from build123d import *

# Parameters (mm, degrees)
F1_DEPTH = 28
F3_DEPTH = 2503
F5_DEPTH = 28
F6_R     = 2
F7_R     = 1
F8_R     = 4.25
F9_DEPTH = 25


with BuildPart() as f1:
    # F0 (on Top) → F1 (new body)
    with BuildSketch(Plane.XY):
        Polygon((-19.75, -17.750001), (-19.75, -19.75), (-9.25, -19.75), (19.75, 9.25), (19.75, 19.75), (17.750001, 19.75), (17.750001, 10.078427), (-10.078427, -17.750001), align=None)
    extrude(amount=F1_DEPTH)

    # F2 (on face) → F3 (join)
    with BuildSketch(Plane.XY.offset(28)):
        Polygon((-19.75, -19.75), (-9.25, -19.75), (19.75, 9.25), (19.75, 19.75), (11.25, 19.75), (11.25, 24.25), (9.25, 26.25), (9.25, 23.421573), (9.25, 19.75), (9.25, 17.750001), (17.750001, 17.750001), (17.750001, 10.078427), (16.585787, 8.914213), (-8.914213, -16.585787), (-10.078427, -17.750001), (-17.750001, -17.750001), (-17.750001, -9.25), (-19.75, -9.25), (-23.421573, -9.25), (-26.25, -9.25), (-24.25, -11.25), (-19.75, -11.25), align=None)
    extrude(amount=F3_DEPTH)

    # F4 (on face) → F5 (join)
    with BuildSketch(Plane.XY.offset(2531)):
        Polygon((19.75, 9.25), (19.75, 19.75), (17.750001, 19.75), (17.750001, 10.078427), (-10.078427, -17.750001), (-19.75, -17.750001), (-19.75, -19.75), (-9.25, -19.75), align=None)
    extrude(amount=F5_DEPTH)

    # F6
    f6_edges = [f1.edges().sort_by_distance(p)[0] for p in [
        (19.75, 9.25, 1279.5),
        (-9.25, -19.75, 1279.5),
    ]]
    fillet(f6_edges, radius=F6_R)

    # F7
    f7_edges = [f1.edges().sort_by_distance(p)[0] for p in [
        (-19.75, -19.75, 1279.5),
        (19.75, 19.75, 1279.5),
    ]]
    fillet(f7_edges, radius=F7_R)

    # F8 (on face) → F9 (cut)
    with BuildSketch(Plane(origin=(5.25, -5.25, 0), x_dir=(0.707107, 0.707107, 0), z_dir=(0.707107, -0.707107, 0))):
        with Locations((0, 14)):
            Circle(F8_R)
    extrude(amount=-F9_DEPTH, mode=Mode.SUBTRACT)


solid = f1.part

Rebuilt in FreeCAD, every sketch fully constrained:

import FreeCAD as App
import Part
import Sketcher
from FreeCAD import Vector
Q = App.Units.Quantity


def edges_at(feature, points):
    """Names of the edges that pass closest to the given points."""
    edges = feature.Shape.Edges
    near = lambda p: min(range(len(edges)), key=lambda i: edges[i].distToShape(Part.Vertex(*p))[0])
    return sorted({f"Edge{near(p) + 1}" for p in points})


def add_polygon(sketch, points):
    """Adds a closed chain of lines whose ends are joined by coincident constraints."""
    first, n = sketch.GeometryCount, len(points)
    for a, b in zip(points, points[1:] + points[:1]):
        sketch.addGeometry(Part.LineSegment(App.Vector(*a, 0), App.Vector(*b, 0)), False)
    for i in range(n):
        sketch.addConstraint(Sketcher.Constraint("Coincident", first + i, 2, first + (i + 1) % n, 1))

doc = App.newDocument("Part")
body = doc.addObject("PartDesign::Body", "Body")

sketch1 = body.newObject("Sketcher::SketchObject", "Sketch")
sketch1.AttachmentSupport = (doc.getObject("XY_Plane"), [""])
sketch1.MapMode = "FlatFace"
add_polygon(sketch1, [(-19.8, -17.8), (-19.8, -19.8), (-9.2, -19.8), (19.8, 9.2), (19.8, 19.8), (17.8, 19.8), (17.8, 10.1), (-10.1, -17.8)])
sketch1.addConstraint(Sketcher.Constraint("Vertical", 0))
sketch1.addConstraint(Sketcher.Constraint("Horizontal", 1))
sketch1.addConstraint(Sketcher.Constraint("Vertical", 3))
sketch1.addConstraint(Sketcher.Constraint("Horizontal", 4))
sketch1.addConstraint(Sketcher.Constraint("Vertical", 5))
sketch1.addConstraint(Sketcher.Constraint("Horizontal", 7))
sketch1.addConstraint(Sketcher.Constraint("Symmetric", 0, 2, 3, 2, -1, 1))
sketch1.addConstraint(Sketcher.Constraint("Parallel", 2, 6))
sketch1.addConstraint(Sketcher.Constraint("Equal", 4, 0))
sketch1.addConstraint(Sketcher.Constraint("Equal", 1, 3))
sketch1.addConstraint(Sketcher.Constraint("Equal", 7, 5))
sketch1.addConstraint(Sketcher.Constraint("DistanceX", 4, 2, 4, 1, Q("1.999999 mm")))
sketch1.addConstraint(Sketcher.Constraint("DistanceX", 1, 1, 1, 2, Q("10.5 mm")))
sketch1.addConstraint(Sketcher.Constraint("DistanceX", 1, 2, 2, 2, Q("29 mm")))
sketch1.addConstraint(Sketcher.Constraint("Distance", 6, Q("39.35534 mm")))
pad1 = body.newObject("PartDesign::Pad", "Pad")
pad1.Profile = sketch1
pad1.Length = 28

sketch2 = body.newObject("Sketcher::SketchObject", "Sketch001")
sketch2.AttachmentSupport = (doc.getObject("XY_Plane"), [""])
sketch2.MapMode = "FlatFace"
sketch2.AttachmentOffset = App.Placement(Vector(0, 0, 28), App.Rotation())
add_polygon(sketch2, [(-19.8, -19.8), (-9.2, -19.8), (19.8, 9.2), (19.8, 19.8), (11.2, 19.8), (11.2, 24.2), (9.2, 26.2), (9.2, 17.8), (17.8, 17.8), (17.8, 10.1), (-10.1, -17.8), (-17.8, -17.8), (-17.8, -9.2), (-26.2, -9.2), (-24.2, -11.2), (-19.8, -11.2)])
sketch2.addConstraint(Sketcher.Constraint("Horizontal", 0))
sketch2.addConstraint(Sketcher.Constraint("Vertical", 2))
sketch2.addConstraint(Sketcher.Constraint("Horizontal", 3))
sketch2.addConstraint(Sketcher.Constraint("Vertical", 4))
sketch2.addConstraint(Sketcher.Constraint("Vertical", 6))
sketch2.addConstraint(Sketcher.Constraint("Horizontal", 7))
sketch2.addConstraint(Sketcher.Constraint("Vertical", 8))
sketch2.addConstraint(Sketcher.Constraint("Horizontal", 10))
sketch2.addConstraint(Sketcher.Constraint("Vertical", 11))
sketch2.addConstraint(Sketcher.Constraint("Horizontal", 12))
sketch2.addConstraint(Sketcher.Constraint("Horizontal", 14))
sketch2.addConstraint(Sketcher.Constraint("Vertical", 15))
sketch2.addConstraint(Sketcher.Constraint("Symmetric", 7, 2, 10, 2, -1, 1))
sketch2.addConstraint(Sketcher.Constraint("Symmetric", 2, 2, 15, 2, -1, 1))
sketch2.addConstraint(Sketcher.Constraint("Perpendicular", 1, 5))
sketch2.addConstraint(Sketcher.Constraint("Perpendicular", 5, 9))
sketch2.addConstraint(Sketcher.Constraint("Perpendicular", 9, 13))
sketch2.addConstraint(Sketcher.Constraint("Equal", 3, 7))
sketch2.addConstraint(Sketcher.Constraint("Equal", 3, 12))
sketch2.addConstraint(Sketcher.Constraint("Equal", 0, 2))
sketch2.addConstraint(Sketcher.Constraint("Equal", 14, 4))
sketch2.addConstraint(Sketcher.Constraint("Equal", 12, 6))
sketch2.addConstraint(Sketcher.Constraint("Equal", 10, 8))
sketch2.addConstraint(Sketcher.Constraint("Equal", 7, 11))
sketch2.addConstraint(Sketcher.Constraint("Equal", 11, 15))
sketch2.addConstraint(Sketcher.Constraint("DistanceX", 0, 1, 0, 2, Q("10.5 mm")))
sketch2.addConstraint(Sketcher.Constraint("DistanceX", 3, 2, 3, 1, Q("8.5 mm")))
sketch2.addConstraint(Sketcher.Constraint("DistanceX", 14, 1, 14, 2, Q("4.5 mm")))
sketch2.addConstraint(Sketcher.Constraint("DistanceX", 0, 2, 1, 2, Q("29 mm")))
sketch2.addConstraint(Sketcher.Constraint("Distance", 9, Q("39.35534 mm")))
pad2 = body.newObject("PartDesign::Pad", "Pad001")
pad2.Profile = sketch2
pad2.Length = 2503

sketch3 = body.newObject("Sketcher::SketchObject", "Sketch002")
sketch3.AttachmentSupport = (doc.getObject("XY_Plane"), [""])
sketch3.MapMode = "FlatFace"
sketch3.AttachmentOffset = App.Placement(Vector(0, 0, 2531), App.Rotation())
add_polygon(sketch3, [(19.8, 9.2), (19.8, 19.8), (17.8, 19.8), (17.8, 10.1), (-10.1, -17.8), (-19.8, -17.8), (-19.8, -19.8), (-9.2, -19.8)])
sketch3.addConstraint(Sketcher.Constraint("Vertical", 0))
sketch3.addConstraint(Sketcher.Constraint("Horizontal", 1))
sketch3.addConstraint(Sketcher.Constraint("Vertical", 2))
sketch3.addConstraint(Sketcher.Constraint("Horizontal", 4))
sketch3.addConstraint(Sketcher.Constraint("Vertical", 5))
sketch3.addConstraint(Sketcher.Constraint("Horizontal", 6))
sketch3.addConstraint(Sketcher.Constraint("Symmetric", 0, 2, 5, 2, -1, 1))
sketch3.addConstraint(Sketcher.Constraint("Parallel", 3, 7))
sketch3.addConstraint(Sketcher.Constraint("Equal", 6, 0))
sketch3.addConstraint(Sketcher.Constraint("Equal", 4, 2))
sketch3.addConstraint(Sketcher.Constraint("Equal", 1, 5))
sketch3.addConstraint(Sketcher.Constraint("DistanceX", 1, 2, 1, 1, Q("1.999999 mm")))
sketch3.addConstraint(Sketcher.Constraint("DistanceX", 6, 1, 6, 2, Q("10.5 mm")))
sketch3.addConstraint(Sketcher.Constraint("DistanceX", 6, 2, 2, 2, Q("27.000001 mm")))
sketch3.addConstraint(Sketcher.Constraint("Distance", 3, Q("39.35534 mm")))
pad3 = body.newObject("PartDesign::Pad", "Pad002")
pad3.Profile = sketch3
pad3.Length = 28
doc.recompute()

fillet = body.newObject("PartDesign::Fillet", "Fillet")
fillet.Base = (pad3, edges_at(pad3, [(19.75, 9.25, 1279.5), (-9.25, -19.75, 1279.5)]))
fillet.Radius = 2
doc.recompute()

fillet2 = body.newObject("PartDesign::Fillet", "Fillet001")
fillet2.Base = (fillet, edges_at(fillet, [(-19.75, -19.75, 1279.5), (19.75, 19.75, 1279.5)]))
fillet2.Radius = 1

sketch4 = body.newObject("Sketcher::SketchObject", "Sketch003")
sketch4.Placement = App.Placement(Vector(5.25, -5.25, 0), App.Rotation(Vector(0.707106781, 0.707106781, 0), Vector(0, 0, 0.999999999), Vector(0.707106781, -0.707106781, 0), "ZXY"))
sketch4.addGeometry(Part.Circle(Vector(0, 14, 0), Vector(0, 0, 1), 4.2), False)
sketch4.addConstraint(Sketcher.Constraint("PointOnObject", 0, 3, -2))
sketch4.addConstraint(Sketcher.Constraint("Diameter", 0, Q("8.5 mm")))
sketch4.addConstraint(Sketcher.Constraint("DistanceY", -1, 1, 0, 3, Q("14 mm")))
pocket1 = body.newObject("PartDesign::Pocket", "Pocket")
pocket1.Profile = sketch4
pocket1.Length = 25

doc.recompute()
